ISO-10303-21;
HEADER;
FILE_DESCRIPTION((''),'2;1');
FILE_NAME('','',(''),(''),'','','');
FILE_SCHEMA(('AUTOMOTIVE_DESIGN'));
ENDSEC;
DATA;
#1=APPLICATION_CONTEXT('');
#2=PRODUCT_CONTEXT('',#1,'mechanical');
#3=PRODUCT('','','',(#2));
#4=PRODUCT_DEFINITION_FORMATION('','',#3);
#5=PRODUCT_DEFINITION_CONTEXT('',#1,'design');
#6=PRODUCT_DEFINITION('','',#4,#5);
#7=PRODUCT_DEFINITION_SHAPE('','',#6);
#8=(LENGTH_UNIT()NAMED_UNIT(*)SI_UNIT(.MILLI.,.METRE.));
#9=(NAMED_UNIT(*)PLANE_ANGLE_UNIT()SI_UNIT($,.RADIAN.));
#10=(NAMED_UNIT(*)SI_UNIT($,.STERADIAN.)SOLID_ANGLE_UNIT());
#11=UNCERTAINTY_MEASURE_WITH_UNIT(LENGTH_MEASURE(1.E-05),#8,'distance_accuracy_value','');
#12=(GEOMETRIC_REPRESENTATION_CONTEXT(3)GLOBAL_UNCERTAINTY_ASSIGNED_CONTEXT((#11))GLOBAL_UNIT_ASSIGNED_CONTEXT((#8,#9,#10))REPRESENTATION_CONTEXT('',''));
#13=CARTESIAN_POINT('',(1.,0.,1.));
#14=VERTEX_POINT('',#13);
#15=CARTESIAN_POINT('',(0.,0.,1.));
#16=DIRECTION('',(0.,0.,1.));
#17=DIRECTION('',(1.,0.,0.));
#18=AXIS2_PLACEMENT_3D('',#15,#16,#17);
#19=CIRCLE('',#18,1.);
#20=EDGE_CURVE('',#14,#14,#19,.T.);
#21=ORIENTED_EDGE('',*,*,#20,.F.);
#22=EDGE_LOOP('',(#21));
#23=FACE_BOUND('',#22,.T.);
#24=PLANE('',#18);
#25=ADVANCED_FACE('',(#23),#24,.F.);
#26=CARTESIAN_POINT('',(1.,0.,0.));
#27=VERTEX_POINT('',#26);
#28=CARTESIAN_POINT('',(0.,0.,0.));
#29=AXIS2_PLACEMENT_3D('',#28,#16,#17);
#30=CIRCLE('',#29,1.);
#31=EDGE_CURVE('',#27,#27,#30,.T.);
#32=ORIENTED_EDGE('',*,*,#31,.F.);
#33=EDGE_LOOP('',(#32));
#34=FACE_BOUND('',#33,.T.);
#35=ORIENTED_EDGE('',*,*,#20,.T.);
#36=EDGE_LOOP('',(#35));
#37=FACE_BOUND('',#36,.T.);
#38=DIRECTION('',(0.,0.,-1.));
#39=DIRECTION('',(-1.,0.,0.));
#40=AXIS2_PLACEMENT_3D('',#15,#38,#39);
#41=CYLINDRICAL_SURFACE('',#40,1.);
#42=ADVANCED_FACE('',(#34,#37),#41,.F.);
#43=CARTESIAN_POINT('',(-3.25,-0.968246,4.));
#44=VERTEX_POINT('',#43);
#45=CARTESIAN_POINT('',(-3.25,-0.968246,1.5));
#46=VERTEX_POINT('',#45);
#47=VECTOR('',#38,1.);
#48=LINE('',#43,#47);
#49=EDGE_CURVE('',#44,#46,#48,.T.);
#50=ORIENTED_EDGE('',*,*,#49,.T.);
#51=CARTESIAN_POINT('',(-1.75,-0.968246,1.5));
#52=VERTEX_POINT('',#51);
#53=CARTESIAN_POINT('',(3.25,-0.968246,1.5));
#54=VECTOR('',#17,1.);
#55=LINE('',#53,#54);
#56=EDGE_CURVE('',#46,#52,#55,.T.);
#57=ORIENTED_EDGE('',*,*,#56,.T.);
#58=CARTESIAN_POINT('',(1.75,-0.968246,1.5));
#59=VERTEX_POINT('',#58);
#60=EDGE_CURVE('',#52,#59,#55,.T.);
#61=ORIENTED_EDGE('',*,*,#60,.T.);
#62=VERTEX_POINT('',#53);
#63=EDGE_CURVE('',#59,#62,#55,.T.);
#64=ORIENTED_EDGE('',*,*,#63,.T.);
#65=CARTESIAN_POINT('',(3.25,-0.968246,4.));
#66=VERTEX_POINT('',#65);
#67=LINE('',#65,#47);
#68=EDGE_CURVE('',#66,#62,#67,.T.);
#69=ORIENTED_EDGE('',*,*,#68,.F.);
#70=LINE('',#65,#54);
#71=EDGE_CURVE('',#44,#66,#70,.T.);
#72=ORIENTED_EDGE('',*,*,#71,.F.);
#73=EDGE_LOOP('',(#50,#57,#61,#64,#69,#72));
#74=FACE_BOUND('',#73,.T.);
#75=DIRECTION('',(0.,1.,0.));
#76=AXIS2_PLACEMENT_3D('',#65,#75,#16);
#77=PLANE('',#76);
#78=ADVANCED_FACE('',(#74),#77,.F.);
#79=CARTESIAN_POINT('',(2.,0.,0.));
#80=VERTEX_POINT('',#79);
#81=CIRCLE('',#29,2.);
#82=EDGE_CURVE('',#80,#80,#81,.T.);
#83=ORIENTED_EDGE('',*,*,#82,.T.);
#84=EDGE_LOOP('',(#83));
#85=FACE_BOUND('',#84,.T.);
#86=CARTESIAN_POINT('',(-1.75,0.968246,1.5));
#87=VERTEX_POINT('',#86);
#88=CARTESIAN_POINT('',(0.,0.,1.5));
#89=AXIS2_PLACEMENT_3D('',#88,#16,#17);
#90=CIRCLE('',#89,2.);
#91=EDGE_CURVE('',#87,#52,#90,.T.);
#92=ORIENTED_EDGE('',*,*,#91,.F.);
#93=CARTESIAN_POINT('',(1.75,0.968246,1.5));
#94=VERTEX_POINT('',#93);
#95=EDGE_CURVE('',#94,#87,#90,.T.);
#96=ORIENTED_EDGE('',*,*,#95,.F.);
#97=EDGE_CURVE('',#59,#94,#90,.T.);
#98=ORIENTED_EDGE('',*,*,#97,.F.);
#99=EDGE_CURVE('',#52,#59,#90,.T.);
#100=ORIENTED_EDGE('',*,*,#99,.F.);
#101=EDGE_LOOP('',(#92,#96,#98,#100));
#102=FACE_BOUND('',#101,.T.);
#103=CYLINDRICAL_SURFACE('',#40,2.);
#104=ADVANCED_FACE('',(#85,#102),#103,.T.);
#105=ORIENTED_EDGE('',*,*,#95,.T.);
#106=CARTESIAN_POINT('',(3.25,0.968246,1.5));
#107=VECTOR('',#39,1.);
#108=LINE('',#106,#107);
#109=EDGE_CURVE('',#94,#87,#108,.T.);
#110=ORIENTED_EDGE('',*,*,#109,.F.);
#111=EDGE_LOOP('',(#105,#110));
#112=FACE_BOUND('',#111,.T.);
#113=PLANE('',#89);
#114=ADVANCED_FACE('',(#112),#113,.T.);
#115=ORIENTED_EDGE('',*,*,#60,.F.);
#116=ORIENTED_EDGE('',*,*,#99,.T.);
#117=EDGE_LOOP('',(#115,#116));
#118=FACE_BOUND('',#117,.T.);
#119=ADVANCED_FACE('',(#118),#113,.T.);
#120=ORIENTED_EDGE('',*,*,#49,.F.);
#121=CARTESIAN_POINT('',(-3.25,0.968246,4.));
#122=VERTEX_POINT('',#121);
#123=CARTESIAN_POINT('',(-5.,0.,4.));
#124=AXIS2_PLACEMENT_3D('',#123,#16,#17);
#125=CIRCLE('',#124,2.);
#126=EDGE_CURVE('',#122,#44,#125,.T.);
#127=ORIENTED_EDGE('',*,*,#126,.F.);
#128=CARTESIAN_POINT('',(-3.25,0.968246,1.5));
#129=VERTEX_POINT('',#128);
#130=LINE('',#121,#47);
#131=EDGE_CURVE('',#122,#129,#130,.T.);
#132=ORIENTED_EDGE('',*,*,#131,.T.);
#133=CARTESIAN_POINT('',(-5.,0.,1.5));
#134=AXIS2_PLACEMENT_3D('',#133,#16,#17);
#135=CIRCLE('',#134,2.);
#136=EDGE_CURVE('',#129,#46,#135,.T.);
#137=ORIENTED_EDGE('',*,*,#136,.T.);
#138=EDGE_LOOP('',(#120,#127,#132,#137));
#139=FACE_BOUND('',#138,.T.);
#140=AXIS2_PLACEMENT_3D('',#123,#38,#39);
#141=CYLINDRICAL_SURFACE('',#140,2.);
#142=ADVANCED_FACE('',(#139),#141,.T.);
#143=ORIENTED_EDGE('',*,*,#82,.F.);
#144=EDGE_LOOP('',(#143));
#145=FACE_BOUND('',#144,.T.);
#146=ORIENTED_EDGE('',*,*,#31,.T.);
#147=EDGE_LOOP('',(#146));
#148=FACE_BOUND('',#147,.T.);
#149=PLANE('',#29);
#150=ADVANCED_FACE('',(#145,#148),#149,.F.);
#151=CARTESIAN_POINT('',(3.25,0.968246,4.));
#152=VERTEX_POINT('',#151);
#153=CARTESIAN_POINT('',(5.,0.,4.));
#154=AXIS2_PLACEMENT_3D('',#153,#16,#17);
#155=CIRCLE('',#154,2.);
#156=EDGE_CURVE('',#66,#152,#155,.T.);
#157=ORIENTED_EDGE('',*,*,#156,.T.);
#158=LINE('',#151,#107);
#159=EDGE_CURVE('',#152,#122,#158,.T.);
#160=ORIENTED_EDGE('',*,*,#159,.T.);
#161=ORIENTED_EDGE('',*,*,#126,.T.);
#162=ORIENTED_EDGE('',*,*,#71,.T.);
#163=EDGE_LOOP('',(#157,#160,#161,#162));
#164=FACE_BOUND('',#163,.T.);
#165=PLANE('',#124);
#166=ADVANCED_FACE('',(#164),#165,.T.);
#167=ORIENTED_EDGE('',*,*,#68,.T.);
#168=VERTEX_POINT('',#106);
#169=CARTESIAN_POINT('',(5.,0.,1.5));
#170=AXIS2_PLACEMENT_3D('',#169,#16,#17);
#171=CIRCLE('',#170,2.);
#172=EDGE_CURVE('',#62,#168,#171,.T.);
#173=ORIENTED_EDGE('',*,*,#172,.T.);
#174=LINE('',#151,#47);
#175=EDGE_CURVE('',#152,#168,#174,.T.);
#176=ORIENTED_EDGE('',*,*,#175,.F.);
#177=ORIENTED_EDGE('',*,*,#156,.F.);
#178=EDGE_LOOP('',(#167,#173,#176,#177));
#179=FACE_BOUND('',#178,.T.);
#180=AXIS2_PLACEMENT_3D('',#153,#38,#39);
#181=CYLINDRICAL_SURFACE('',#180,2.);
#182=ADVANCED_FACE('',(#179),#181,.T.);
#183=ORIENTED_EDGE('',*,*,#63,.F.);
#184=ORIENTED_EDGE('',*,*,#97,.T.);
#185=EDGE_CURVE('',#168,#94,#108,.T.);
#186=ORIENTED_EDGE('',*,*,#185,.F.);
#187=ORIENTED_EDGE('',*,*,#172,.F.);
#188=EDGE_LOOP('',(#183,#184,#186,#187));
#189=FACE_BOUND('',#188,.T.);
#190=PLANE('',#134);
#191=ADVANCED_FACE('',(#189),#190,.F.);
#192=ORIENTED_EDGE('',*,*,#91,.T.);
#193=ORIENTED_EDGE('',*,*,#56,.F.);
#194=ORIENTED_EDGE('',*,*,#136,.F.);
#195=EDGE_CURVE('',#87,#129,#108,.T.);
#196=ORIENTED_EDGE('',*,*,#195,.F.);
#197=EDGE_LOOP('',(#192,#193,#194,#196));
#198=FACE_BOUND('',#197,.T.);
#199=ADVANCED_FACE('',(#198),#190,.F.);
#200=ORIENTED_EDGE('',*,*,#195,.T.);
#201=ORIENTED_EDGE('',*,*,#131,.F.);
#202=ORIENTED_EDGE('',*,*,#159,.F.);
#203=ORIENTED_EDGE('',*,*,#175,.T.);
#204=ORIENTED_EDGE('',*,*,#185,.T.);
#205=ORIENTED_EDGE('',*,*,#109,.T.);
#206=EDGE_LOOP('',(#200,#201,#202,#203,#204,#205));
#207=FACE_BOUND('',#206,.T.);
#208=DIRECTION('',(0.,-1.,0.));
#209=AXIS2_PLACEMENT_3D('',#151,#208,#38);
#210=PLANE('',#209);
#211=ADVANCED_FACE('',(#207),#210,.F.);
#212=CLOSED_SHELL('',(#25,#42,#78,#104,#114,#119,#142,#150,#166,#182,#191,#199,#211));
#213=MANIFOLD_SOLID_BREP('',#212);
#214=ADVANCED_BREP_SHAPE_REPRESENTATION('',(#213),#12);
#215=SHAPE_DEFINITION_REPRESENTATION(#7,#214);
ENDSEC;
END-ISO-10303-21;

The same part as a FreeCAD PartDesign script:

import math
import FreeCAD as App
import Part
import Sketcher

doc = App.newDocument("Part")
body = doc.addObject("PartDesign::Body", "Body")

# Sketch on XY plane
sketch1 = body.newObject("Sketcher::SketchObject", "Sketch")
sketch1.AttachmentSupport = (doc.getObject("XY_Plane"), [""])
sketch1.MapMode = "FlatFace"
sketch1.addGeometry([
    Part.Circle(App.Vector(0, 0, 0), App.Vector(0, 0, 1), 2),
    Part.Circle(App.Vector(0, 0, 0), App.Vector(0, 0, 1), 1),
], False)
sketch1.addConstraint([
    Sketcher.Constraint("Coincident", 0, 3, -1, 1),
    Sketcher.Constraint("Coincident", 1, 3, -1, 1),
    Sketcher.Constraint("Diameter", 0, 4.0),
    Sketcher.Constraint("Diameter", 1, 2.0),
])
pad1 = body.newObject("PartDesign::Pad", "Pad")
pad1.Profile = sketch1
pad1.Length = 1

# Sketch on XY plane
sketch2 = body.newObject("Sketcher::SketchObject", "Sketch001")
sketch2.AttachmentSupport = (doc.getObject("XY_Plane"), [""])
sketch2.MapMode = "FlatFace"
sketch2.AttachmentOffset = App.Placement(App.Vector(0, 0, 1), App.Rotation())
sketch2.addGeometry(Part.Circle(App.Vector(0, 0, 0), App.Vector(0, 0, 1), 2), False)
sketch2.addConstraint([
    Sketcher.Constraint("Coincident", 0, 3, -1, 1),
    Sketcher.Constraint("Diameter", 0, 4.0),
])
pad2 = body.newObject("PartDesign::Pad", "Pad001")
pad2.Profile = sketch2
pad2.Length = 0.5

# Sketch on XY plane
sketch3 = body.newObject("Sketcher::SketchObject", "Sketch002")
sketch3.AttachmentSupport = (doc.getObject("XY_Plane"), [""])
sketch3.MapMode = "FlatFace"
sketch3.AttachmentOffset = App.Placement(App.Vector(0, 0, 1.5), App.Rotation())
sketch3.addGeometry([
    Part.LineSegment(App.Vector(-3.2, -1, 0), App.Vector(3.2, -1, 0)),
    Part.ArcOfCircle(Part.Circle(App.Vector(5, 0, 0), App.Vector(0, 0, 1), 2), math.radians(-151), math.radians(151)),
    Part.LineSegment(App.Vector(3.2, 1, 0), App.Vector(-3.2, 1, 0)),
    Part.ArcOfCircle(Part.Circle(App.Vector(-5, 0, 0), App.Vector(0, 0, 1), 2), math.radians(29), math.radians(331)),
], False)
sketch3.addConstraint([
    Sketcher.Constraint("Coincident", 0, 2, 1, 1),
    Sketcher.Constraint("Coincident", 1, 2, 2, 1),
    Sketcher.Constraint("Coincident", 2, 2, 3, 1),
    Sketcher.Constraint("Coincident", 3, 2, 0, 1),
    Sketcher.Constraint("Horizontal", 0),
    Sketcher.Constraint("Horizontal", 2),
    Sketcher.Constraint("Equal", 1, 3),
    Sketcher.Constraint("Symmetric", 1, 3, 3, 3, -1, 1),
    Sketcher.Constraint("Symmetric", 0, 2, 1, 2, -1),
    Sketcher.Constraint("Radius", 1, 2.0),
    Sketcher.Constraint("DistanceX", 0, 1, 0, 2, 6.5),
    Sketcher.Constraint("DistanceX", -1, 1, 1, 3, 5.0),
])
pad3 = body.newObject("PartDesign::Pad", "Pad002")
pad3.Profile = sketch3
pad3.Length = 2.5

doc.recompute()
